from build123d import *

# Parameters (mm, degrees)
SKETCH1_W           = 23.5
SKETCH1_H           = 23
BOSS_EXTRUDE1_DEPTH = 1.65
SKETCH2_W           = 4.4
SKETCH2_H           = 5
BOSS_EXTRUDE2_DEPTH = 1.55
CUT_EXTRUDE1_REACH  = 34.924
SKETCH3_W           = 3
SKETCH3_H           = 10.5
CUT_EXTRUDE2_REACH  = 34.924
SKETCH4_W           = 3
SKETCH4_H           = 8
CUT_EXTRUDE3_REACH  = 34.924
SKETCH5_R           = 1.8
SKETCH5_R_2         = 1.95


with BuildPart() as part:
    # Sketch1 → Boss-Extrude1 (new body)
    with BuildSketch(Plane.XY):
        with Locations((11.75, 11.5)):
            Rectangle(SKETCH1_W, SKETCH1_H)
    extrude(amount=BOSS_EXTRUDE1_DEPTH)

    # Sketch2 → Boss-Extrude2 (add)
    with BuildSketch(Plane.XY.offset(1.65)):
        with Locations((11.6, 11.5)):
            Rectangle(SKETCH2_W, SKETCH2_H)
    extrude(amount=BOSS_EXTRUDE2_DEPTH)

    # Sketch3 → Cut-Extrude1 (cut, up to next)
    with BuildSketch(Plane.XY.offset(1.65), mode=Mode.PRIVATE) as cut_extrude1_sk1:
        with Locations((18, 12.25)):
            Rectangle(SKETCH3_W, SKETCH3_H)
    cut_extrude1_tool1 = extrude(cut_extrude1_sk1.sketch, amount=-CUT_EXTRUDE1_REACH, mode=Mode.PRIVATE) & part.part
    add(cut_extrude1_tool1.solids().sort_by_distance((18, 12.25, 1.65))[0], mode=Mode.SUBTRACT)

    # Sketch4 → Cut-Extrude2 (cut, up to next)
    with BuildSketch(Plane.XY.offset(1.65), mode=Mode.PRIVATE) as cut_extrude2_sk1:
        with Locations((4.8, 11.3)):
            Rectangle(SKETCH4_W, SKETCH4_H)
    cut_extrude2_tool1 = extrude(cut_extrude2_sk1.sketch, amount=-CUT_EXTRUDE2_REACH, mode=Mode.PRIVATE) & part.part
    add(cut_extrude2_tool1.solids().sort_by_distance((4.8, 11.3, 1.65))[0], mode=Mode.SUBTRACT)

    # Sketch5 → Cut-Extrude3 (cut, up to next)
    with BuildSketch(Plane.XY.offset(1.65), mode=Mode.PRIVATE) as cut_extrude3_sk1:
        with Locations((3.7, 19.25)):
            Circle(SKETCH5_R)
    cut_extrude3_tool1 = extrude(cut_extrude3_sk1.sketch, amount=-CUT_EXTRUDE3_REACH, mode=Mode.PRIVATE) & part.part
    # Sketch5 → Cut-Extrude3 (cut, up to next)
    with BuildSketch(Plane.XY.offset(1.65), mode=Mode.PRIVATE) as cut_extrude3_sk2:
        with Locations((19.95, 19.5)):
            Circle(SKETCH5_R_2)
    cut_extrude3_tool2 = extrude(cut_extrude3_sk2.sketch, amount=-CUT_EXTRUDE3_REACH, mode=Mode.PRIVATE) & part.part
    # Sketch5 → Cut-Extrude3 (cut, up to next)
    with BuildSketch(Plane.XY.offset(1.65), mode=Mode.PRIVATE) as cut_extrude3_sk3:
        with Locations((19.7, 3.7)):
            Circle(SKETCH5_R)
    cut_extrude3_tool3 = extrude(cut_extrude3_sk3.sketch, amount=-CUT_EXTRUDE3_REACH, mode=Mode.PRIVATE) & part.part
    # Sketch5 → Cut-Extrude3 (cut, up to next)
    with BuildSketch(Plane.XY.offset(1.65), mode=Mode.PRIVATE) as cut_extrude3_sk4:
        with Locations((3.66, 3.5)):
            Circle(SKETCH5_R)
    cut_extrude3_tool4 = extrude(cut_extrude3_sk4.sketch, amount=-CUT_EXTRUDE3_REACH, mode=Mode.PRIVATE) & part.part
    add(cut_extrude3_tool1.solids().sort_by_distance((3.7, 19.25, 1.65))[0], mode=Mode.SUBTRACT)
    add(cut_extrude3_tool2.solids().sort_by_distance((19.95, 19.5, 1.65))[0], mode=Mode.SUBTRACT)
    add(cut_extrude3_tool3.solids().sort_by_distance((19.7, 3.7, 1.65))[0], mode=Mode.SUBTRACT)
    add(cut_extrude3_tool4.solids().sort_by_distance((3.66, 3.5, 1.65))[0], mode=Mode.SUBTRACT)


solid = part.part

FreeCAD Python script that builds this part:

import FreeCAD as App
import Part
import Sketcher

V = App.Vector
Q = App.Units.Quantity

doc = App.newDocument("Part")
body = doc.addObject("PartDesign::Body", "Body")

sketch1 = body.newObject("Sketcher::SketchObject", "Sketch")
sketch1.AttachmentSupport = (doc.getObject("XY_Plane"), [""])
sketch1.MapMode = "FlatFace"
sketch1.addGeometry([
    Part.LineSegment(V(0, 23, 0), V(0, 0, 0)),
    Part.LineSegment(V(0, 0, 0), V(24, 0, 0)),
    Part.LineSegment(V(24, 0, 0), V(24, 23, 0)),
    Part.LineSegment(V(24, 23, 0), V(0, 23, 0)),
], False)
sketch1.addConstraint([
    Sketcher.Constraint("Coincident", 0, 2, 1, 1),
    Sketcher.Constraint("Coincident", 1, 2, 2, 1),
    Sketcher.Constraint("Coincident", 2, 2, 3, 1),
    Sketcher.Constraint("Coincident", 3, 2, 0, 1),
    Sketcher.Constraint("Vertical", 0),
    Sketcher.Constraint("Horizontal", 1),
    Sketcher.Constraint("Vertical", 2),
    Sketcher.Constraint("Horizontal", 3),
    Sketcher.Constraint("Coincident", 0, 2, -1, 1),
    Sketcher.Constraint("DistanceY", 0, 2, 0, 1, Q("23 mm")),
    Sketcher.Constraint("DistanceX", 1, 1, 1, 2, Q("23.5 mm")),
])
pad1 = body.newObject("PartDesign::Pad", "Pad")
pad1.Profile = sketch1
pad1.Length = 1.65

sketch2 = body.newObject("Sketcher::SketchObject", "Sketch001")
sketch2.AttachmentSupport = (doc.getObject("XY_Plane"), [""])
sketch2.MapMode = "FlatFace"
sketch2.AttachmentOffset = App.Placement(V(0, 0, 1.65), App.Rotation())
sketch2.addGeometry([
    Part.LineSegment(V(9.4, 14, 0), V(9.4, 9, 0)),
    Part.LineSegment(V(9.4, 9, 0), V(13.8, 9, 0)),
    Part.LineSegment(V(13.8, 9, 0), V(13.8, 14, 0)),
    Part.LineSegment(V(13.8, 14, 0), V(9.4, 14, 0)),
], False)
sketch2.addConstraint([
    Sketcher.Constraint("Coincident", 0, 2, 1, 1),
    Sketcher.Constraint("Coincident", 1, 2, 2, 1),
    Sketcher.Constraint("Coincident", 2, 2, 3, 1),
    Sketcher.Constraint("Coincident", 3, 2, 0, 1),
    Sketcher.Constraint("Vertical", 0),
    Sketcher.Constraint("Horizontal", 1),
    Sketcher.Constraint("Vertical", 2),
    Sketcher.Constraint("Horizontal", 3),
    Sketcher.Constraint("DistanceY", 0, 2, 0, 1, Q("5 mm")),
    Sketcher.Constraint("DistanceX", 1, 1, 1, 2, Q("4.4 mm")),
    Sketcher.Constraint("DistanceY", -1, 1, 0, 2, Q("9 mm")),
    Sketcher.Constraint("DistanceX", -1, 1, 0, 2, Q("9.4 mm")),
])
pad2 = body.newObject("PartDesign::Pad", "Pad001")
pad2.Profile = sketch2
pad2.Length = 1.55

sketch3 = body.newObject("Sketcher::SketchObject", "Sketch002")
sketch3.AttachmentSupport = (doc.getObject("XY_Plane"), [""])
sketch3.MapMode = "FlatFace"
sketch3.AttachmentOffset = App.Placement(V(0, 0, 1.65), App.Rotation())
sketch3.addGeometry([
    Part.LineSegment(V(16.5, 17.5, 0), V(16.5, 7, 0)),
    Part.LineSegment(V(16.5, 7, 0), V(19.5, 7, 0)),
    Part.LineSegment(V(19.5, 7, 0), V(19.5, 17.5, 0)),
    Part.LineSegment(V(19.5, 17.5, 0), V(16.5, 17.5, 0)),
], False)
sketch3.addConstraint([
    Sketcher.Constraint("Coincident", 0, 2, 1, 1),
    Sketcher.Constraint("Coincident", 1, 2, 2, 1),
    Sketcher.Constraint("Coincident", 2, 2, 3, 1),
    Sketcher.Constraint("Coincident", 3, 2, 0, 1),
    Sketcher.Constraint("Vertical", 0),
    Sketcher.Constraint("Horizontal", 1),
    Sketcher.Constraint("Vertical", 2),
    Sketcher.Constraint("Horizontal", 3),
    Sketcher.Constraint("DistanceX", 1, 1, 1, 2, Q("3 mm")),
    Sketcher.Constraint("DistanceY", 0, 2, 0, 1, Q("10.5 mm")),
    Sketcher.Constraint("DistanceY", -1, 1, 0, 2, Q("7 mm")),
    Sketcher.Constraint("DistanceX", -1, 1, 0, 2, Q("16.5 mm")),
])
pocket1 = body.newObject("PartDesign::Pocket", "Pocket")
pocket1.Profile = sketch3
pocket1.Type = "UpToFirst"

sketch4 = body.newObject("Sketcher::SketchObject", "Sketch003")
sketch4.AttachmentSupport = (doc.getObject("XY_Plane"), [""])
sketch4.MapMode = "FlatFace"
sketch4.AttachmentOffset = App.Placement(V(0, 0, 1.65), App.Rotation())
sketch4.addGeometry([
    Part.LineSegment(V(3.3, 15.3, 0), V(3.3, 7.3, 0)),
    Part.LineSegment(V(3.3, 7.3, 0), V(6.3, 7.3, 0)),
    Part.LineSegment(V(6.3, 7.3, 0), V(6.3, 15.3, 0)),
    Part.LineSegment(V(6.3, 15.3, 0), V(3.3, 15.3, 0)),
], False)
sketch4.addConstraint([
    Sketcher.Constraint("Coincident", 0, 2, 1, 1),
    Sketcher.Constraint("Coincident", 1, 2, 2, 1),
    Sketcher.Constraint("Coincident", 2, 2, 3, 1),
    Sketcher.Constraint("Coincident", 3, 2, 0, 1),
    Sketcher.Constraint("Vertical", 0),
    Sketcher.Constraint("Horizontal", 1),
    Sketcher.Constraint("Vertical", 2),
    Sketcher.Constraint("Horizontal", 3),
    Sketcher.Constraint("DistanceX", 1, 1, 1, 2, Q("3 mm")),
    Sketcher.Constraint("DistanceY", 0, 2, 0, 1, Q("8 mm")),
    Sketcher.Constraint("DistanceX", -1, 1, 0, 2, Q("3.3 mm")),
    Sketcher.Constraint("DistanceY", -1, 1, 0, 2, Q("7.3 mm")),
])
pocket2 = body.newObject("PartDesign::Pocket", "Pocket001")
pocket2.Profile = sketch4
pocket2.Type = "UpToFirst"

sketch5 = body.newObject("Sketcher::SketchObject", "Sketch004")
sketch5.AttachmentSupport = (doc.getObject("XY_Plane"), [""])
sketch5.MapMode = "FlatFace"
sketch5.AttachmentOffset = App.Placement(V(0, 0, 1.65), App.Rotation())
sketch5.addGeometry(Part.Circle(V(3.7, 19.2, 0), V(0, 0, 1), 1.8), False)
sketch5.addConstraint([
    Sketcher.Constraint("Diameter", 0, Q("3.6 mm")),
    Sketcher.Constraint("DistanceX", -1, 1, 0, 3, Q("3.7 mm")),
    Sketcher.Constraint("DistanceY", -1, 1, 0, 3, Q("19.25 mm")),
])
pocket3 = body.newObject("PartDesign::Pocket", "Pocket002")
pocket3.Profile = sketch5
pocket3.Type = "UpToFirst"

sketch6 = body.newObject("Sketcher::SketchObject", "Sketch005")
sketch6.AttachmentSupport = (doc.getObject("XY_Plane"), [""])
sketch6.MapMode = "FlatFace"
sketch6.AttachmentOffset = App.Placement(V(0, 0, 1.65), App.Rotation())
sketch6.addGeometry(Part.Circle(V(19.9, 19.5, 0), V(0, 0, 1), 1.9), False)
sketch6.addConstraint([
    Sketcher.Constraint("Diameter", 0, Q("3.9 mm")),
    Sketcher.Constraint("DistanceY", -1, 1, 0, 3, Q("19.5 mm")),
    Sketcher.Constraint("DistanceX", -1, 1, 0, 3, Q("19.95 mm")),
])
pocket4 = body.newObject("PartDesign::Pocket", "Pocket003")
pocket4.Profile = sketch6
pocket4.Type = "UpToFirst"

sketch7 = body.newObject("Sketcher::SketchObject", "Sketch006")
sketch7.AttachmentSupport = (doc.getObject("XY_Plane"), [""])
sketch7.MapMode = "FlatFace"
sketch7.AttachmentOffset = App.Placement(V(0, 0, 1.65), App.Rotation())
sketch7.addGeometry(Part.Circle(V(19.7, 3.7, 0), V(0, 0, 1), 1.8), False)
sketch7.addConstraint([
    Sketcher.Constraint("Diameter", 0, Q("3.6 mm")),
    Sketcher.Constraint("DistanceX", -1, 1, 0, 3, Q("19.7 mm")),
    Sketcher.Constraint("DistanceY", -1, 1, 0, 3, Q("3.7 mm")),
])
pocket5 = body.newObject("PartDesign::Pocket", "Pocket004")
pocket5.Profile = sketch7
pocket5.Type = "UpToFirst"

sketch8 = body.newObject("Sketcher::SketchObject", "Sketch007")
sketch8.AttachmentSupport = (doc.getObject("XY_Plane"), [""])
sketch8.MapMode = "FlatFace"
sketch8.AttachmentOffset = App.Placement(V(0, 0, 1.65), App.Rotation())
sketch8.addGeometry(Part.Circle(V(3.7, 3.5, 0), V(0, 0, 1), 1.8), False)
sketch8.addConstraint([
    Sketcher.Constraint("Diameter", 0, Q("3.6 mm")),
    Sketcher.Constraint("DistanceY", -1, 1, 0, 3, Q("3.5 mm")),
    Sketcher.Constraint("DistanceX", -1, 1, 0, 3, Q("3.66 mm")),
])
pocket6 = body.newObject("PartDesign::Pocket", "Pocket005")
pocket6.Profile = sketch8
pocket6.Type = "UpToFirst"

doc.recompute()
